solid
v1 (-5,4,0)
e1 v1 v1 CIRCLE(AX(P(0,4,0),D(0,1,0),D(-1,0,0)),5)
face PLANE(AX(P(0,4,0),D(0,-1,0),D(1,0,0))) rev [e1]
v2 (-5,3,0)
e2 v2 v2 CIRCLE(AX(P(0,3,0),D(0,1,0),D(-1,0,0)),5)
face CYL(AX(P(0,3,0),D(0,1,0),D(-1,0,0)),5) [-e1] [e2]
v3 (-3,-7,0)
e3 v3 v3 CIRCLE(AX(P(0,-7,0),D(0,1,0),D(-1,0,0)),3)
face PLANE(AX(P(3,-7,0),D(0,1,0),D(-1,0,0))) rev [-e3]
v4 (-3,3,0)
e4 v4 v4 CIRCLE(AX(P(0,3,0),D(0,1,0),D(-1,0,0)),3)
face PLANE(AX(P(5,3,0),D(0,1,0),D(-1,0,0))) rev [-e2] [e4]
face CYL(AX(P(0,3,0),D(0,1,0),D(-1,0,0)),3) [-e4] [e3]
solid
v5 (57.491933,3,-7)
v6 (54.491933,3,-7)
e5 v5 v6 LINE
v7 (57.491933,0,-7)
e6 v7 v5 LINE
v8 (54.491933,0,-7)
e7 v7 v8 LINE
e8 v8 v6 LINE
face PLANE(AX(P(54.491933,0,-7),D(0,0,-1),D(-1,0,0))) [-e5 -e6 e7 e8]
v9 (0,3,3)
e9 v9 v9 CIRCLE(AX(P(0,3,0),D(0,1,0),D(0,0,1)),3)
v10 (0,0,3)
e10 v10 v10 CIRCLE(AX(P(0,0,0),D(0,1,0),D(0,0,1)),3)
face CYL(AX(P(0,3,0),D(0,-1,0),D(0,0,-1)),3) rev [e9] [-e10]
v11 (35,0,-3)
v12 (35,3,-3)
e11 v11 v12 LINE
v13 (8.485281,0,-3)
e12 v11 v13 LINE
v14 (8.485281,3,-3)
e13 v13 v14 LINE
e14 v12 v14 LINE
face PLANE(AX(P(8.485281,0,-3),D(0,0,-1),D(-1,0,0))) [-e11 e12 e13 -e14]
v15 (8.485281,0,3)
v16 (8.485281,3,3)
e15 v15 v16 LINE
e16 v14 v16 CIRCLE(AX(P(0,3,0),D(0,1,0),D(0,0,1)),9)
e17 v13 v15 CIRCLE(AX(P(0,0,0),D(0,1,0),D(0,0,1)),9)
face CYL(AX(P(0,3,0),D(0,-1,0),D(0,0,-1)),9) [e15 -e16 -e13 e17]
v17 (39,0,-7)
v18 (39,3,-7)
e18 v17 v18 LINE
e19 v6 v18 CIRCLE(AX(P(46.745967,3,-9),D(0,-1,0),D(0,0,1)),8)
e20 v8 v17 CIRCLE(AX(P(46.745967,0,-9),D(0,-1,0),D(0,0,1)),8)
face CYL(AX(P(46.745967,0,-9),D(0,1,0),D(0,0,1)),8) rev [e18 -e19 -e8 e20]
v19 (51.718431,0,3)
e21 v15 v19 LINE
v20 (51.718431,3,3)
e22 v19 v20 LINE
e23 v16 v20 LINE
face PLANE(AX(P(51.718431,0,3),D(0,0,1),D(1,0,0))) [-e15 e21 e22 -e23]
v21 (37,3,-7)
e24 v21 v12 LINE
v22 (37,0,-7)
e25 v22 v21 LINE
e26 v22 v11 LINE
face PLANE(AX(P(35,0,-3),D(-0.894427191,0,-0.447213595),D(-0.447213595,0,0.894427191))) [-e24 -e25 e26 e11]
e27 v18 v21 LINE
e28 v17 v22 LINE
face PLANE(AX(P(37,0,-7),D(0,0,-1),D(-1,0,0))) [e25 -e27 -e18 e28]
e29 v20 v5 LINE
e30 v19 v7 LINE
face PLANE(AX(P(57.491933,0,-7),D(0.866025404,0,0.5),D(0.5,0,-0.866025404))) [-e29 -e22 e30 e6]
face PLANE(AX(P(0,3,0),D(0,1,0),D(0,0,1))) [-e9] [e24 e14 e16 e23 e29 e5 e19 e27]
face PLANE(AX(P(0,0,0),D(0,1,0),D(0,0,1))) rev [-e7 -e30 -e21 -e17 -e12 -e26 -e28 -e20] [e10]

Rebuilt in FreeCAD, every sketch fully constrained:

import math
import FreeCAD as App
import Part
import Sketcher
Q = App.Units.Quantity


def add_polygon(sketch, points):
    """Adds a closed chain of lines whose ends are joined by coincident constraints."""
    first, n = sketch.GeometryCount, len(points)
    for a, b in zip(points, points[1:] + points[:1]):
        sketch.addGeometry(Part.LineSegment(App.Vector(*a, 0), App.Vector(*b, 0)), False)
    for i in range(n):
        sketch.addConstraint(Sketcher.Constraint("Coincident", first + i, 2, first + (i + 1) % n, 1))

doc = App.newDocument("Part")
body = doc.addObject("PartDesign::Body", "Body")

# Sketch on XZ plane
sketch1 = doc.addObject("Sketcher::SketchObject", "Sketch")
body.addObject(sketch1)
sketch1.AttachmentSupport = (doc.XZ_Plane, [""])
sketch1.MapMode = "FlatFace"
sketch1.addGeometry([
    Part.Circle(App.Vector(0, 0, 0), App.Vector(0, 0, 1), 9),
    Part.Circle(App.Vector(0, 0, 0), App.Vector(0, 0, 1), 3),
], False)
sketch1.addConstraint([
    Sketcher.Constraint("Coincident", 0, 3, -1, 1),
    Sketcher.Constraint("Coincident", 1, 3, -1, 1),
    Sketcher.Constraint("Diameter", 0, Q("18 mm")),
    Sketcher.Constraint("Diameter", 1, Q("6 mm")),
])
pad1 = doc.addObject("PartDesign::Pad", "Pad")
body.addObject(pad1)
pad1.Profile = sketch1
pad1.Length = 3
pad1.Reversed = True

# Sketch on XZ plane
sketch2 = doc.addObject("Sketcher::SketchObject", "Sketch001")
body.addObject(sketch2)
sketch2.AttachmentSupport = (doc.XZ_Plane, [""])
sketch2.MapMode = "FlatFace"
sketch2.AttachmentOffset = App.Placement(App.Vector(0, 0, -3), App.Rotation())
sketch2.addGeometry([
    Part.LineSegment(App.Vector(35, -3, 0), App.Vector(8.485281, -3, 0)),  # 0
    Part.ArcOfCircle(Part.Circle(App.Vector(0, 0, 0), App.Vector(0, 0, 1), 9), math.radians(-19.471221), math.radians(19.471221)),  # 1
    Part.LineSegment(App.Vector(8.485281, 3, 0), App.Vector(51.718431, 3, 0)),  # 2
    Part.LineSegment(App.Vector(51.718431, 3, 0), App.Vector(57.491933, -7, 0)),  # 3
    Part.LineSegment(App.Vector(57.491933, -7, 0), App.Vector(54.491933, -7, 0)),  # 4
    Part.ArcOfCircle(Part.Circle(App.Vector(46.745967, -9, 0), App.Vector(0, 0, 1), 8), math.radians(14.477512), math.radians(165.522488)),  # 5
    Part.LineSegment(App.Vector(39, -7, 0), App.Vector(37, -7, 0)),  # 6
    Part.LineSegment(App.Vector(37, -7, 0), App.Vector(35, -3, 0)),  # 7
], False)
sketch2.addConstraint([
    Sketcher.Constraint("Coincident", 0, 2, 1, 1),
    Sketcher.Constraint("Coincident", 1, 2, 2, 1),
    Sketcher.Constraint("Coincident", 2, 2, 3, 1),
    Sketcher.Constraint("Coincident", 3, 2, 4, 1),
    Sketcher.Constraint("Coincident", 4, 2, 5, 1),
    Sketcher.Constraint("Coincident", 5, 2, 6, 1),
    Sketcher.Constraint("Coincident", 6, 2, 7, 1),
    Sketcher.Constraint("Coincident", 7, 2, 0, 1),
    Sketcher.Constraint("Horizontal", 0),
    Sketcher.Constraint("Horizontal", 2),
    Sketcher.Constraint("Horizontal", 4),
    Sketcher.Constraint("Horizontal", 6),
    Sketcher.Constraint("Coincident", 1, 3, -1, 1),
    Sketcher.Constraint("Horizontal", 4, 2, 5, 2),
    Sketcher.Constraint("Vertical", 0, 2, 1, 2),
    Sketcher.Constraint("Radius", 1, Q("9 mm")),
    Sketcher.Constraint("Radius", 5, Q("8 mm")),
    Sketcher.Constraint("DistanceX", 4, 2, 4, 1, Q("3 mm")),
    Sketcher.Constraint("DistanceX", 6, 2, 6, 1, Q("2 mm")),
    Sketcher.Constraint("Angle", 3, Q("-60 deg")),
    Sketcher.Constraint("DistanceY", 5, 3, -1, 1, Q("9 mm")),
    Sketcher.Constraint("DistanceY", 0, 2, -1, 1, Q("3 mm")),
    Sketcher.Constraint("DistanceY", 3, 2, -1, 1, Q("7 mm")),
    Sketcher.Constraint("DistanceX", -1, 1, 5, 2, Q("39 mm")),
    Sketcher.Constraint("DistanceX", -1, 1, 7, 2, Q("35 mm")),
])
pad2 = doc.addObject("PartDesign::Pad", "Pad001")
body.addObject(pad2)
pad2.Profile = sketch2
pad2.Length = 3
body2 = doc.addObject("PartDesign::Body", "Body001")

# Sketch on XY plane
sketch3 = doc.addObject("Sketcher::SketchObject", "Sketch002")
body2.addObject(sketch3)
sketch3.AttachmentSupport = (doc.getObject("XY_Plane001"), [""])
sketch3.MapMode = "FlatFace"
add_polygon(sketch3, [(0, -7), (3, -7), (3, 3), (5, 3), (5, 4), (0, 4)])  # lines 0-5
sketch3.addConstraint([
    Sketcher.Constraint("Horizontal", 0),
    Sketcher.Constraint("Vertical", 1),
    Sketcher.Constraint("Horizontal", 2),
    Sketcher.Constraint("Vertical", 3),
    Sketcher.Constraint("Horizontal", 4),
    Sketcher.Constraint("Vertical", 5),
    Sketcher.Constraint("PointOnObject", 4, 2, -2),
    Sketcher.Constraint("DistanceX", 0, 1, 0, 2, Q("3 mm")),
    Sketcher.Constraint("DistanceX", 2, 1, 2, 2, Q("2 mm")),
    Sketcher.Constraint("DistanceY", 1, 1, 1, 2, Q("10 mm")),
    Sketcher.Constraint("DistanceY", 3, 1, 3, 2, Q("1 mm")),
    Sketcher.Constraint("DistanceY", 0, 2, -1, 1, Q("7 mm")),
])
revolution = doc.addObject("PartDesign::Revolution", "Revolution")
body2.addObject(revolution)
revolution.Profile = sketch3
revolution.ReferenceAxis = (sketch3, ["V_Axis"])
revolution.Angle = 360

doc.recompute()
